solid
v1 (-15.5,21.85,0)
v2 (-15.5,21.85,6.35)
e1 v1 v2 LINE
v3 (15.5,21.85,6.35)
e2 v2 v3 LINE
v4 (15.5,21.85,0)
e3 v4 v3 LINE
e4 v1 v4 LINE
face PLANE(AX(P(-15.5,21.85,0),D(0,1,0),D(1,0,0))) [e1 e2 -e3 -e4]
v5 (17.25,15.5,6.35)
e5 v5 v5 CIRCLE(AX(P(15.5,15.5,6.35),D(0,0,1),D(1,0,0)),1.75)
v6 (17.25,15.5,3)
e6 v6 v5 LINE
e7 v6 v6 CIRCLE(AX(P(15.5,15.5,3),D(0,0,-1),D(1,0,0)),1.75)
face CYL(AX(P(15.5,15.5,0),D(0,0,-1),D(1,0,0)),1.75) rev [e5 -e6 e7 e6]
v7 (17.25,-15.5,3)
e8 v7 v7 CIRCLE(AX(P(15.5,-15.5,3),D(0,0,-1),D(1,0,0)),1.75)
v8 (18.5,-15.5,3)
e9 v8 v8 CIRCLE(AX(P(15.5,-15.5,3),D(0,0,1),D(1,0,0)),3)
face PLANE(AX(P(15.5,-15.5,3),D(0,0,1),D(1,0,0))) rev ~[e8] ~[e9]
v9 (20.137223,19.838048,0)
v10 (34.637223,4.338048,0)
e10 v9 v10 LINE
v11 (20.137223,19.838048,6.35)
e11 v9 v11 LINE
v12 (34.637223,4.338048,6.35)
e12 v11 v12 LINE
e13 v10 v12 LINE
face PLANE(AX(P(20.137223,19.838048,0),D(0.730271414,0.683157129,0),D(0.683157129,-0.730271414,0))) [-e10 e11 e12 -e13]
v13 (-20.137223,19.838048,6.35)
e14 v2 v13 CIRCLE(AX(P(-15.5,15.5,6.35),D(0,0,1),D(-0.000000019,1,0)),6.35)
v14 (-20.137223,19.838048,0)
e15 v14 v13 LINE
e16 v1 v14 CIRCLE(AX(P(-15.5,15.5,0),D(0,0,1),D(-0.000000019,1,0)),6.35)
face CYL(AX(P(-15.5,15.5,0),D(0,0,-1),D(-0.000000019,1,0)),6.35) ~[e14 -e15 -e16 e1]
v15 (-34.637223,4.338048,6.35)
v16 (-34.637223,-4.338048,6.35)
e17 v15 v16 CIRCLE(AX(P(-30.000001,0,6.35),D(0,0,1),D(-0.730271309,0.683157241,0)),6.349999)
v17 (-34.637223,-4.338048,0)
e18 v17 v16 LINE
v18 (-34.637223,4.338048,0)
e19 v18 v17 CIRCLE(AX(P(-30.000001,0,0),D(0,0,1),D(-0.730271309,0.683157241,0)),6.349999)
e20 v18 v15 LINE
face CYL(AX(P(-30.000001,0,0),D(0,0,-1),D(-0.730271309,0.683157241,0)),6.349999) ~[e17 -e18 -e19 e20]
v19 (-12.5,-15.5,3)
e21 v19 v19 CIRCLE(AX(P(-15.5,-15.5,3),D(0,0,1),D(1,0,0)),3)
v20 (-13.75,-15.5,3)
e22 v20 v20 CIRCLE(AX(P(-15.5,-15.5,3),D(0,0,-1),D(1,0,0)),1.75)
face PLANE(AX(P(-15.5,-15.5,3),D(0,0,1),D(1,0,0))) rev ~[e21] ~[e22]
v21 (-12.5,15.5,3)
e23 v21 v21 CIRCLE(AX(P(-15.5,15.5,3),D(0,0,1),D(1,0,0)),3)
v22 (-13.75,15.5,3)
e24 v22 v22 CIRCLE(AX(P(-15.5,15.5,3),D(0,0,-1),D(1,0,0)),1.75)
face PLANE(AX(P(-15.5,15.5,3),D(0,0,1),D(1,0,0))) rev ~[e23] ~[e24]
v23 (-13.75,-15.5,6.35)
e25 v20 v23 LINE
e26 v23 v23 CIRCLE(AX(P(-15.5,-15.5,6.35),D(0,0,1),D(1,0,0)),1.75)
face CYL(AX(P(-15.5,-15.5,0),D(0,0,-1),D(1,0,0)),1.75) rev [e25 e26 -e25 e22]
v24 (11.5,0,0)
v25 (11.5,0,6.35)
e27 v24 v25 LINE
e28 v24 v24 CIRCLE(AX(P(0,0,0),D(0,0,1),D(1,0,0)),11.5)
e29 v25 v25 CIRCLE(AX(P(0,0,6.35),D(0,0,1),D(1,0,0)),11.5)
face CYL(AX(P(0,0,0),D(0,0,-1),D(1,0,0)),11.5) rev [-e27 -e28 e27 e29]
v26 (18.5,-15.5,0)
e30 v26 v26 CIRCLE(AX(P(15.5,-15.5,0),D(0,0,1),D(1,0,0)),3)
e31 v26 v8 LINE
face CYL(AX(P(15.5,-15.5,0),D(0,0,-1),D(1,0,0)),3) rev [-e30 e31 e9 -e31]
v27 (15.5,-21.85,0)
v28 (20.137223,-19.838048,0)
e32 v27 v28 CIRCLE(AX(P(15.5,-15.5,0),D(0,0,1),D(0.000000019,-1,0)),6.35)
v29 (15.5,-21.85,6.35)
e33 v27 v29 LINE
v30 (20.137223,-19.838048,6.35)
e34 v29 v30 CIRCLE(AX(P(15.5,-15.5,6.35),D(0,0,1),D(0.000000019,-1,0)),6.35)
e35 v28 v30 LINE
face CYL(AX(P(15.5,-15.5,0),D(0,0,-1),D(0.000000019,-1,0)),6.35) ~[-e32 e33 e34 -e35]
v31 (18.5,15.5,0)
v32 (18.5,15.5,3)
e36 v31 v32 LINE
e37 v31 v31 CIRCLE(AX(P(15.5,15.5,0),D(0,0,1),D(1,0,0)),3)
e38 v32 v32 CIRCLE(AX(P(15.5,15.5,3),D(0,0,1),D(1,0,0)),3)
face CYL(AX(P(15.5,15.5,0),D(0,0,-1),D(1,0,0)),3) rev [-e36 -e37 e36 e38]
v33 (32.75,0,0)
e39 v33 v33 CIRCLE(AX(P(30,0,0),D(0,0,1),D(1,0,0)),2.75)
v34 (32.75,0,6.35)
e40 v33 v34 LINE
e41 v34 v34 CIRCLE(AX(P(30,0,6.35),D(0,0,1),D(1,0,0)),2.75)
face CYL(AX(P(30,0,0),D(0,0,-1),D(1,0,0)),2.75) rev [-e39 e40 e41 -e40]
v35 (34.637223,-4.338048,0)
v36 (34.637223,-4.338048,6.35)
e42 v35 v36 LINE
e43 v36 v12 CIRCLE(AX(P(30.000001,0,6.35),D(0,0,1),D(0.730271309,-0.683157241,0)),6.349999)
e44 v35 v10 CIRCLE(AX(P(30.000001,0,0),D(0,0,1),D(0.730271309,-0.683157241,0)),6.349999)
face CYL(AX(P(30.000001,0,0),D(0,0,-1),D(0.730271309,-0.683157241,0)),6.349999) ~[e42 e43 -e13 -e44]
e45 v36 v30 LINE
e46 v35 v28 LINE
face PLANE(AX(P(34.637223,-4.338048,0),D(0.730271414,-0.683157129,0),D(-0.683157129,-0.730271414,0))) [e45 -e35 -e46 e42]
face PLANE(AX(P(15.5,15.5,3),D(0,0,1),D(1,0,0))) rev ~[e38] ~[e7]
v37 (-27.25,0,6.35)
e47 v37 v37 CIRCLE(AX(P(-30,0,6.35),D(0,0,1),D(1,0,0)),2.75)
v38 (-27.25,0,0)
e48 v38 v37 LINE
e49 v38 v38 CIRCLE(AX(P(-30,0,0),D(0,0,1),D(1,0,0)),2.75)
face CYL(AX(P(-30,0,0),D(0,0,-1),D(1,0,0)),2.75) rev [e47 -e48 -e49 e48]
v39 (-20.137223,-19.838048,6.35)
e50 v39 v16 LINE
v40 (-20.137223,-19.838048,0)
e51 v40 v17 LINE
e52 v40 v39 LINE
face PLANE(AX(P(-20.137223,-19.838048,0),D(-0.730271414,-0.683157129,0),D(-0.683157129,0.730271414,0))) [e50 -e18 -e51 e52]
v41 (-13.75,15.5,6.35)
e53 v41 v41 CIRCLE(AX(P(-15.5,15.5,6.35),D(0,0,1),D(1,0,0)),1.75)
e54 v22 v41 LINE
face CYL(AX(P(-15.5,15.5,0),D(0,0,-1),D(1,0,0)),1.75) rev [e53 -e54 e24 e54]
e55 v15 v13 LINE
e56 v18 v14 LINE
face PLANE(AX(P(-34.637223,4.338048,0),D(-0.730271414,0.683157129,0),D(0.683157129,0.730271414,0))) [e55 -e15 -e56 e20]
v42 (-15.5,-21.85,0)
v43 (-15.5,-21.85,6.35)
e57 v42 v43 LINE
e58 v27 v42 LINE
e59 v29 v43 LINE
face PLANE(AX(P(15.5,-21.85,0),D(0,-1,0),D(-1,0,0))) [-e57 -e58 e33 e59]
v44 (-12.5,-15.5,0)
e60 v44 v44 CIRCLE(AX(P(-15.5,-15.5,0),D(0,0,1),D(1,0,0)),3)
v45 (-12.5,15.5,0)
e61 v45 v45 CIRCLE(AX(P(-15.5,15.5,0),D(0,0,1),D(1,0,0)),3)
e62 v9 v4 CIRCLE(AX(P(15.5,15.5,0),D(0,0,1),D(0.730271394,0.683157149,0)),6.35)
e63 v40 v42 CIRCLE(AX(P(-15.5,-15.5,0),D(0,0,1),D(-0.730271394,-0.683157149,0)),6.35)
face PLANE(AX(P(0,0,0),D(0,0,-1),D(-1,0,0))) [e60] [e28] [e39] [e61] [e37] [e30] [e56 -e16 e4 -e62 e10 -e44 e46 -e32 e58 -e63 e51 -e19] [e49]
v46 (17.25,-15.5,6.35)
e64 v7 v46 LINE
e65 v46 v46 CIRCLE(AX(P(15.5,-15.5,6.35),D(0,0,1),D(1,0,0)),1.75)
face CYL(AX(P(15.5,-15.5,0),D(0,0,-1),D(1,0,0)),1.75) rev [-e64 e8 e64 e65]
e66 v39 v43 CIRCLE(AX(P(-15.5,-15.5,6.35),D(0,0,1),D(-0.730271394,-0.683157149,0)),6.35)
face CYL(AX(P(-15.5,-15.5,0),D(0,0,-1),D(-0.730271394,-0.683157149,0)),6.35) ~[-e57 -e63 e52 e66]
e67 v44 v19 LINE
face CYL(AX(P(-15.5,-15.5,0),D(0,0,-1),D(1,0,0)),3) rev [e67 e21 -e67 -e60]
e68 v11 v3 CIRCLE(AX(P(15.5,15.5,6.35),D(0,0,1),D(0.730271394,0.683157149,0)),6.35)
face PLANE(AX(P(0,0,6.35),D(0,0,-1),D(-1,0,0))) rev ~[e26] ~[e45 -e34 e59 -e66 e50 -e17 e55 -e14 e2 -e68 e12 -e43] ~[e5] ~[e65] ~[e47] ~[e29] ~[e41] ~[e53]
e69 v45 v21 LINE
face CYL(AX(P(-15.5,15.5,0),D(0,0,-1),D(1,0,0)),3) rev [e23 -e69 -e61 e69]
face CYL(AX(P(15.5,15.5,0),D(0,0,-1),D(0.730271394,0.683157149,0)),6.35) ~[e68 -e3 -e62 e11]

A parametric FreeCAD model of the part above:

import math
import FreeCAD as App
import Part
import Sketcher

V = App.Vector
Q = App.Units.Quantity

doc = App.newDocument("Part")
params = doc.addObject("Spreadsheet::Sheet", "Params")
for row, (alias, value) in enumerate([
    ("sketch1_diameter", "23 mm"),
    ("sketch1_diameter2", "3.5 mm"),
    ("sketch1_diameter3", "5.5 mm"),
    ("sketch1_width", "31 mm"),
    ("sketch1_radius", "6.349999 mm"),
    ("pad1_length", "6.35 mm"),
    ("sketch2_diameter", "6 mm"),
    ("pocket1_length", "3 mm"),
], start=1):
    params.set(f"A{row}", alias)
    params.set(f"B{row}", "=" + value)
    params.setAlias(f"B{row}", alias)

body = doc.addObject("PartDesign::Body", "Body")

# Sketch on XY plane
sketch1 = doc.addObject("Sketcher::SketchObject", "Sketch")
body.addObject(sketch1)
sketch1.AttachmentSupport = (doc.XY_Plane, [""])
sketch1.MapMode = "FlatFace"
sketch1.addGeometry([
    Part.LineSegment(V(-20.1, 19.8, 0), V(-34.6, 4.3, 0)),  # 0
    Part.ArcOfCircle(Part.Circle(V(-30, 0, 0), V(0, 0, 1), 6.3), math.radians(137), math.radians(223)),  # 1
    Part.LineSegment(V(-34.6, -4.3, 0), V(-20.1, -19.8, 0)),  # 2
    Part.ArcOfCircle(Part.Circle(V(-15.5, -15.5, 0), V(0, 0, 1), 6.3), math.radians(-137), math.radians(-90)),  # 3
    Part.LineSegment(V(-15.5, -21.9, 0), V(15.5, -21.9, 0)),  # 4
    Part.ArcOfCircle(Part.Circle(V(15.5, -15.5, 0), V(0, 0, 1), 6.3), math.radians(-90), math.radians(-43)),  # 5
    Part.LineSegment(V(20.1, -19.8, 0), V(34.6, -4.3, 0)),  # 6
    Part.ArcOfCircle(Part.Circle(V(30, 0, 0), V(0, 0, 1), 6.3), math.radians(-43), math.radians(43)),  # 7
    Part.LineSegment(V(34.6, 4.3, 0), V(20.1, 19.8, 0)),  # 8
    Part.ArcOfCircle(Part.Circle(V(15.5, 15.5, 0), V(0, 0, 1), 6.3), math.radians(43), math.radians(90)),  # 9
    Part.LineSegment(V(15.5, 21.9, 0), V(-15.5, 21.9, 0)),  # 10
    Part.ArcOfCircle(Part.Circle(V(-15.5, 15.5, 0), V(0, 0, 1), 6.3), math.radians(90), math.radians(137)),  # 11
    Part.Circle(V(15.5, -15.5, 0), V(0, 0, 1), 1.8),  # 12
    Part.Circle(V(-15.5, -15.5, 0), V(0, 0, 1), 1.8),  # 13
    Part.Circle(V(30, 0, 0), V(0, 0, 1), 2.8),  # 14
    Part.Circle(V(15.5, 15.5, 0), V(0, 0, 1), 1.8),  # 15
    Part.Circle(V(0, 0, 0), V(0, 0, 1), 11.5),  # 16
    Part.Circle(V(-30, 0, 0), V(0, 0, 1), 2.8),  # 17
    Part.Circle(V(-15.5, 15.5, 0), V(0, 0, 1), 1.8),  # 18
], False)
sketch1.addConstraint([
    Sketcher.Constraint("Tangent", 0, 2, 1, 1),
    Sketcher.Constraint("Tangent", 1, 2, 2, 1),
    Sketcher.Constraint("Tangent", 2, 2, 3, 1),
    Sketcher.Constraint("Tangent", 3, 2, 4, 1),
    Sketcher.Constraint("Tangent", 4, 2, 5, 1),
    Sketcher.Constraint("Tangent", 5, 2, 6, 1),
    Sketcher.Constraint("Tangent", 6, 2, 7, 1),
    Sketcher.Constraint("Tangent", 7, 2, 8, 1),
    Sketcher.Constraint("Tangent", 8, 2, 9, 1),
    Sketcher.Constraint("Tangent", 9, 2, 10, 1),
    Sketcher.Constraint("Tangent", 10, 2, 11, 1),
    Sketcher.Constraint("Tangent", 11, 2, 0, 1),
    Sketcher.Constraint("Horizontal", 4),
    Sketcher.Constraint("Horizontal", 10),
    Sketcher.Constraint("Coincident", 16, 3, -1, 1),
    Sketcher.Constraint("Coincident", 12, 3, 5, 3),
    Sketcher.Constraint("Coincident", 13, 3, 3, 3),
    Sketcher.Constraint("Coincident", 14, 3, 7, 3),
    Sketcher.Constraint("Coincident", 15, 3, 9, 3),
    Sketcher.Constraint("Coincident", 17, 3, 1, 3),
    Sketcher.Constraint("Coincident", 18, 3, 11, 3),
    Sketcher.Constraint("Equal", 1, 3),
    Sketcher.Constraint("Equal", 3, 5),
    Sketcher.Constraint("Equal", 5, 7),
    Sketcher.Constraint("Equal", 7, 9),
    Sketcher.Constraint("Equal", 9, 11),
    Sketcher.Constraint("Equal", 12, 13),
    Sketcher.Constraint("Equal", 13, 15),
    Sketcher.Constraint("Equal", 14, 17),
    Sketcher.Constraint("Equal", 15, 18),
    Sketcher.Constraint("Symmetric", 1, 3, 7, 3, -1, 1),
    Sketcher.Constraint("Symmetric", 3, 3, 9, 3, -1, 1),
    Sketcher.Constraint("Symmetric", 2, 2, 5, 2, -2),
    Sketcher.Constraint("Parallel", 0, 6),
    Sketcher.Constraint("Diameter", 16, Q("23 mm")),
    Sketcher.Constraint("Diameter", 12, Q("3.5 mm")),
    Sketcher.Constraint("Diameter", 14, Q("5.5 mm")),
    Sketcher.Constraint("DistanceX", 4, 1, 4, 2, Q("31 mm")),
    Sketcher.Constraint("Radius", 1, Q("6.349999 mm")),
    Sketcher.Constraint("DistanceX", 1, 3, -1, 1, Q("30.000001 mm")),
    Sketcher.Constraint("DistanceY", 5, 3, 9, 3, Q("31.000001 mm")),
])
sketch1.setExpression("Constraints[34]", "Params.sketch1_diameter")
sketch1.setExpression("Constraints[35]", "Params.sketch1_diameter2")
sketch1.setExpression("Constraints[36]", "Params.sketch1_diameter3")
sketch1.setExpression("Constraints[37]", "Params.sketch1_width")
sketch1.setExpression("Constraints[38]", "Params.sketch1_radius")
pad1 = doc.addObject("PartDesign::Pad", "Pad")
body.addObject(pad1)
pad1.Profile = sketch1
pad1.setExpression("Length", "Params.pad1_length")

# Sketch on XY plane
sketch2 = doc.addObject("Sketcher::SketchObject", "Sketch001")
body.addObject(sketch2)
sketch2.AttachmentSupport = (doc.XY_Plane, [""])
sketch2.MapMode = "FlatFace"
sketch2.addGeometry([
    Part.Circle(V(-15.5, 15.5, 0), V(0, 0, 1), 3),
    Part.Circle(V(15.5, 15.5, 0), V(0, 0, 1), 3),
    Part.Circle(V(15.5, -15.5, 0), V(0, 0, 1), 3),
    Part.Circle(V(-15.5, -15.5, 0), V(0, 0, 1), 3),
], False)
sketch2.addConstraint([
    Sketcher.Constraint("Equal", 0, 1),
    Sketcher.Constraint("Equal", 1, 2),
    Sketcher.Constraint("Equal", 2, 3),
    Sketcher.Constraint("Symmetric", 0, 3, 2, 3, -1, 1),
    Sketcher.Constraint("Symmetric", 1, 3, 3, 3, -1, 1),
    Sketcher.Constraint("Symmetric", 0, 3, 1, 3, -2),
    Sketcher.Constraint("Diameter", 0, Q("6 mm")),
    Sketcher.Constraint("DistanceX", 0, 3, 1, 3, Q("31 mm")),
    Sketcher.Constraint("DistanceY", 2, 3, 1, 3, Q("31 mm")),
])
sketch2.setExpression("Constraints[6]", "Params.sketch2_diameter")
pocket1 = doc.addObject("PartDesign::Pocket", "Pocket")
body.addObject(pocket1)
pocket1.Profile = sketch2
pocket1.setExpression("Length", "Params.pocket1_length")
pocket1.Reversed = True

doc.recompute()
